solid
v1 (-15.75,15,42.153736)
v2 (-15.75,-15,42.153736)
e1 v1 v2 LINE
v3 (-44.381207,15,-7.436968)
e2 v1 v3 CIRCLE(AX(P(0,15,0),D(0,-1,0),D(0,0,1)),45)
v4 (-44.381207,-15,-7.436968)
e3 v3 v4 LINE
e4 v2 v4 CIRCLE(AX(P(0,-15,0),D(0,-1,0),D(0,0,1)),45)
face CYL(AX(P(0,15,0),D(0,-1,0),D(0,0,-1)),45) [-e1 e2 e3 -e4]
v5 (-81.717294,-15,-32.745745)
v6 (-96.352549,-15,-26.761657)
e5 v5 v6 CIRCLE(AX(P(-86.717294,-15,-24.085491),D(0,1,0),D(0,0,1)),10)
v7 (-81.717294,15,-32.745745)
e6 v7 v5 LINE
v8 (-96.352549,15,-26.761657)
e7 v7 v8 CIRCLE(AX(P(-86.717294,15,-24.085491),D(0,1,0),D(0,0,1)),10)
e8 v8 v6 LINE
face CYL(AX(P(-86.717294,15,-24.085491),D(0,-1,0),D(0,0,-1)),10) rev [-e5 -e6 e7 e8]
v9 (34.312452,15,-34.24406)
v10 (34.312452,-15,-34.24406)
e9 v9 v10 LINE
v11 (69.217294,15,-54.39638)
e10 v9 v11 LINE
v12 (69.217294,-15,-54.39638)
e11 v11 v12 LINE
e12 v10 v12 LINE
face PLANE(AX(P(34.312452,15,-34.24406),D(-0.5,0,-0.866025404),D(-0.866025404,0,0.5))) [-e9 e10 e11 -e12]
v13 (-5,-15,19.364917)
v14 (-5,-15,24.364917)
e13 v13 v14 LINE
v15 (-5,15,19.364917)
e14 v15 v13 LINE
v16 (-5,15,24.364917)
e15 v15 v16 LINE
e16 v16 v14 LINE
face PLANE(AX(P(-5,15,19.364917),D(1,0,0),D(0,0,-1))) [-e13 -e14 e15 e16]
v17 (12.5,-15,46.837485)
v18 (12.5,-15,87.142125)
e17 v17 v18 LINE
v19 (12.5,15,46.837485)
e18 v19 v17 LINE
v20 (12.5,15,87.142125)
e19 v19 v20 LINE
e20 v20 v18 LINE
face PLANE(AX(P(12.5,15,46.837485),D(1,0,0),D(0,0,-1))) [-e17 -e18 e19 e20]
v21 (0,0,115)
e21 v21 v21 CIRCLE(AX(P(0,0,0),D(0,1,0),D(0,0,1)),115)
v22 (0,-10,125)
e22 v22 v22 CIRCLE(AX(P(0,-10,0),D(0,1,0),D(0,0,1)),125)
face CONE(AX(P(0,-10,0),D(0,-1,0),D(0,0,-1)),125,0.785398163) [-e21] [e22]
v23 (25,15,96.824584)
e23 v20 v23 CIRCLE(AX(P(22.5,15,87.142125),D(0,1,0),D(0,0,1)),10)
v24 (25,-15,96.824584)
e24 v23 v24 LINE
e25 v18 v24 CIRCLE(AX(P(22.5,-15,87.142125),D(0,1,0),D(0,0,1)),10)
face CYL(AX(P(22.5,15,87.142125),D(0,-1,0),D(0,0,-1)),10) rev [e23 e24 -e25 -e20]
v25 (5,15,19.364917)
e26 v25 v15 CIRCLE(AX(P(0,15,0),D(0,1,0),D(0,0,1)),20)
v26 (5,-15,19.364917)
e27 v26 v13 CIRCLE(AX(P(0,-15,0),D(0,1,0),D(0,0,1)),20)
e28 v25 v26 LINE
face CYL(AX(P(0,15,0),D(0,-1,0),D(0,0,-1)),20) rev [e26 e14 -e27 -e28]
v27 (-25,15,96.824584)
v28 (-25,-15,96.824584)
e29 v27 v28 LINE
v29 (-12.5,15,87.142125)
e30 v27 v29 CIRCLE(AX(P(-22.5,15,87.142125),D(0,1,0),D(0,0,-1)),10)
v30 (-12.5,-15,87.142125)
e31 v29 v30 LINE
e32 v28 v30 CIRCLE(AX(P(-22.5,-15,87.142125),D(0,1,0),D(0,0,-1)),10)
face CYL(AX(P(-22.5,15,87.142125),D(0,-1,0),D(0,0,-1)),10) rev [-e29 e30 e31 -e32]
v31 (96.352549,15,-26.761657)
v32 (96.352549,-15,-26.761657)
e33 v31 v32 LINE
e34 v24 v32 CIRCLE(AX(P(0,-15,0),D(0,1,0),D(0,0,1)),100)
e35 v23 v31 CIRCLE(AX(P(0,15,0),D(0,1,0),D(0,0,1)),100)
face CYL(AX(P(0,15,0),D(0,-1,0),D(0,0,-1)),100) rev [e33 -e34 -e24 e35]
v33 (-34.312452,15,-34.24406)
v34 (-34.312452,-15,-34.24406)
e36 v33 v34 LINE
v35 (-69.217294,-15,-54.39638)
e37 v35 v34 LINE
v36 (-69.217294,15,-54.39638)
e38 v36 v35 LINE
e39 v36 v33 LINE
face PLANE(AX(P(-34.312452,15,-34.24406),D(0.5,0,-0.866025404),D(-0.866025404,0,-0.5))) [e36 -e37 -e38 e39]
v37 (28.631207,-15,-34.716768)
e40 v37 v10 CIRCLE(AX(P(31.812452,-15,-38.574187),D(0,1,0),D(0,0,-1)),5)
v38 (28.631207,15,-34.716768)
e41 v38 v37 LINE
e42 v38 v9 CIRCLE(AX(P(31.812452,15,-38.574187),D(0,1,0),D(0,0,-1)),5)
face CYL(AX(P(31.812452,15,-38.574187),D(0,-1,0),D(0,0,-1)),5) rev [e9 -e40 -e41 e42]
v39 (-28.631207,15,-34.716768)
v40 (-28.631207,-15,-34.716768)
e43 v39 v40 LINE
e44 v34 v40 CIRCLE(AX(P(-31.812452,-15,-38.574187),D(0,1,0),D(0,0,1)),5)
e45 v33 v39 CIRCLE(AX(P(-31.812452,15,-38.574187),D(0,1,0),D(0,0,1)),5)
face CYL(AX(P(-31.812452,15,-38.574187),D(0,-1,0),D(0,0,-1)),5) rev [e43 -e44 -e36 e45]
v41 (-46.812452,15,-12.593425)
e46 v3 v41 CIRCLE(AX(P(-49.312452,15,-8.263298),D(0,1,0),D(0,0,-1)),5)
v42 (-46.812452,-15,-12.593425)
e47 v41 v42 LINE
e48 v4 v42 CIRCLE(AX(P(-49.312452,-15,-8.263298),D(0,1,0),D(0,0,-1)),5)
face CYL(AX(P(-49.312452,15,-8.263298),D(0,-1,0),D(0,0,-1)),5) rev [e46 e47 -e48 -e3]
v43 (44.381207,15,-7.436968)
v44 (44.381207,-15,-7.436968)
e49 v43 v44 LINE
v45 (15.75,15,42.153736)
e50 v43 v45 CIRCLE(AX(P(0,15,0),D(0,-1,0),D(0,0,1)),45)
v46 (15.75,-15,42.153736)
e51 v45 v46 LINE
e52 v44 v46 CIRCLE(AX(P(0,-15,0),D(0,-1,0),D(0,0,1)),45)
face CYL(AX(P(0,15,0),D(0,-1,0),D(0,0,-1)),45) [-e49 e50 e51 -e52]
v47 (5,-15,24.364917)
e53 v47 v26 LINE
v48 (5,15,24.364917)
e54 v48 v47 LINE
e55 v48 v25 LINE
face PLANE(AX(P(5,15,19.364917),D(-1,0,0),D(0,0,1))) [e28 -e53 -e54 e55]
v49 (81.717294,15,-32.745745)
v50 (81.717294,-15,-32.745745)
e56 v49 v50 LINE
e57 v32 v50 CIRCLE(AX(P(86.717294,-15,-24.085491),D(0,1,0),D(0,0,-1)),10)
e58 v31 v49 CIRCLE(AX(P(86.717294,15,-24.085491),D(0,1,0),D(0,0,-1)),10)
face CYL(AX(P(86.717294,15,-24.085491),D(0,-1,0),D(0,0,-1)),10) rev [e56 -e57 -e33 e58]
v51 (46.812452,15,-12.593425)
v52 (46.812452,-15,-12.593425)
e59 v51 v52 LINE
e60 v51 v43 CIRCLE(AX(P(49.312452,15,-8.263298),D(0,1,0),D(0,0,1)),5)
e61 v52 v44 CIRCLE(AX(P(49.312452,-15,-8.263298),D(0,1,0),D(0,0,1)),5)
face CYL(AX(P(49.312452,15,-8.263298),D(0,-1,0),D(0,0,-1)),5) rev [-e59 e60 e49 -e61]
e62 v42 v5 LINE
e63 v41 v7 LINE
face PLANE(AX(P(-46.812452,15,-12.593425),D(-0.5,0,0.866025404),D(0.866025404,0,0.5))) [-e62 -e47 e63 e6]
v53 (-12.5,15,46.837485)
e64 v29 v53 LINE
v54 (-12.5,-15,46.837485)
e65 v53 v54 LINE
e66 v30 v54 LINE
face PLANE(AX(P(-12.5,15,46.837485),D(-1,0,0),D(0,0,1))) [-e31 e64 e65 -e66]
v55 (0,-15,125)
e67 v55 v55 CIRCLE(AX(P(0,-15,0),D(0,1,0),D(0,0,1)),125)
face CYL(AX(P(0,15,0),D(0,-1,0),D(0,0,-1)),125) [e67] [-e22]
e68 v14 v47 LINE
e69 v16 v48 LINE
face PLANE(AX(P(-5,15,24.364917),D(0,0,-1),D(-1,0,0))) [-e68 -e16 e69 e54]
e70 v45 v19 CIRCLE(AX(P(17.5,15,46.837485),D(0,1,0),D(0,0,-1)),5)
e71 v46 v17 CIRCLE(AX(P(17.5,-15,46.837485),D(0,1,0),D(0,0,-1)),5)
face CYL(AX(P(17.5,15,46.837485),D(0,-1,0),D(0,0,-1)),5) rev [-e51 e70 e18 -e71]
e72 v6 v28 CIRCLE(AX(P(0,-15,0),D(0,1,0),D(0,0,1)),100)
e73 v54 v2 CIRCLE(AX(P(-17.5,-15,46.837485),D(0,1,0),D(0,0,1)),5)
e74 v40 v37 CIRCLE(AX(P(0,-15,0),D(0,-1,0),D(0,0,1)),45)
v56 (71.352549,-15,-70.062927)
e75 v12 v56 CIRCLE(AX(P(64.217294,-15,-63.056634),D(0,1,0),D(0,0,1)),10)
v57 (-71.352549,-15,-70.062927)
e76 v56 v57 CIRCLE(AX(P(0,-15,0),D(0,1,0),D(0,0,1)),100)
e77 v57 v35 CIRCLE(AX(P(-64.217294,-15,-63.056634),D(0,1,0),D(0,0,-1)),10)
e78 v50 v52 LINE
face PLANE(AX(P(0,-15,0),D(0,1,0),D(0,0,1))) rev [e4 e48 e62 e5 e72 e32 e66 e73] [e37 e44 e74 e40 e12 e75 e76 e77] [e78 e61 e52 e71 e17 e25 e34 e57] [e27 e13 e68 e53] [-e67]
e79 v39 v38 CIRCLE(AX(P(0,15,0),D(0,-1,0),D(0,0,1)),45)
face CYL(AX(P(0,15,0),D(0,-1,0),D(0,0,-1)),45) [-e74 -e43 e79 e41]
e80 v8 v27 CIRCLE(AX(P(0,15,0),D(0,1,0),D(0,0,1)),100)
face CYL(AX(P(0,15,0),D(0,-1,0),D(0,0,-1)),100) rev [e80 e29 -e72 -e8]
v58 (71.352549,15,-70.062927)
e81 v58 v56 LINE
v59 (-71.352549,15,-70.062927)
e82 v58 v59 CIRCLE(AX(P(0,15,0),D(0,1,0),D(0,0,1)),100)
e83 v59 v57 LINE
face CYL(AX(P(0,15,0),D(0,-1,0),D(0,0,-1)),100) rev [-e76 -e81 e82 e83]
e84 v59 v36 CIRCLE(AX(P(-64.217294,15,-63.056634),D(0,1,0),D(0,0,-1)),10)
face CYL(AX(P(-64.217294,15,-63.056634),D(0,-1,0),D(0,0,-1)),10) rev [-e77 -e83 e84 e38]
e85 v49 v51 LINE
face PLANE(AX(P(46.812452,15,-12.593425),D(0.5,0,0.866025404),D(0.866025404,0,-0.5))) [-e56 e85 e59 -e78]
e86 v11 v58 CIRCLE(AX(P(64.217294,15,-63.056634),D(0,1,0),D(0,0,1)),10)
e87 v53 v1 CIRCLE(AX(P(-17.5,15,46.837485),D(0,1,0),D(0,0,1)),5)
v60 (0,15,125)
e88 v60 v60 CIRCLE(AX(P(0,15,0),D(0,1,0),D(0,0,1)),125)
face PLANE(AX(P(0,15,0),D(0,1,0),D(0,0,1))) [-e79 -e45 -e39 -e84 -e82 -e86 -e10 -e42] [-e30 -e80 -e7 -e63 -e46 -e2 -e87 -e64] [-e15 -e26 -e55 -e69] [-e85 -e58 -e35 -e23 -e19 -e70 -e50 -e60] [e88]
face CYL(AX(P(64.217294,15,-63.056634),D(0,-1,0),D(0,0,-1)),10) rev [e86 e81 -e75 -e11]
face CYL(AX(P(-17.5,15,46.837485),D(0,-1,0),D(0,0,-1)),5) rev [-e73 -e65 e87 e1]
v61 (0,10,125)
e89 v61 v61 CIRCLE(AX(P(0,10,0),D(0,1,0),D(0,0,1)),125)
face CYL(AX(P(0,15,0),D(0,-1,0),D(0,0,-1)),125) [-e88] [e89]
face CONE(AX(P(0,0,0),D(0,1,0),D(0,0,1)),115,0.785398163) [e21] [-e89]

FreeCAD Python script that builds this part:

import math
import FreeCAD as App
import Part
import Sketcher

V = App.Vector
Q = App.Units.Quantity

doc = App.newDocument("Part")
body = doc.addObject("PartDesign::Body", "Body")

sketch1 = body.newObject("Sketcher::SketchObject", "Sketch")
sketch1.AttachmentSupport = (doc.getObject("XZ_Plane"), [""])
sketch1.MapMode = "FlatFace"
sketch1.addGeometry([
    Part.Circle(V(0, 0, 0), V(0, 0, 1), 125),
    Part.ArcOfCircle(Part.Circle(V(-18, 47, 0), V(0, 0, 1), 5), math.radians(-70), math.radians(0)),
    Part.LineSegment(V(-12, 47, 0), V(-12, 87, 0)),
    Part.ArcOfCircle(Part.Circle(V(-22, 87, 0), V(0, 0, 1), 10), math.radians(0), math.radians(104)),
    Part.ArcOfCircle(Part.Circle(V(0, 0, 0), V(0, 0, 1), 100), math.radians(104), math.radians(196)),
    Part.ArcOfCircle(Part.Circle(V(-87, -24, 0), V(0, 0, 1), 10), math.radians(-164), math.radians(-60)),
    Part.LineSegment(V(-82, -33, 0), V(-47, -13, 0)),
    Part.ArcOfCircle(Part.Circle(V(-49, -8, 0), V(0, 0, 1), 5), math.radians(-60), math.radians(10)),
    Part.ArcOfCircle(Part.Circle(V(0, 0, 0), V(0, 0, 1), 45), math.radians(110), math.radians(190)),
    Part.LineSegment(V(69, -54, 0), V(34, -34, 0)),
    Part.ArcOfCircle(Part.Circle(V(32, -39, 0), V(0, 0, 1), 5), math.radians(60), math.radians(130)),
    Part.ArcOfCircle(Part.Circle(V(0, 0, 0), V(0, 0, 1), 45), math.radians(-130), math.radians(-50)),
    Part.ArcOfCircle(Part.Circle(V(-32, -39, 0), V(0, 0, 1), 5), math.radians(50), math.radians(120)),
    Part.LineSegment(V(-34, -34, 0), V(-69, -54, 0)),
    Part.ArcOfCircle(Part.Circle(V(-64, -63, 0), V(0, 0, 1), 10), math.radians(120), math.radians(224)),
    Part.ArcOfCircle(Part.Circle(V(0, 0, 0), V(0, 0, 1), 100), math.radians(-136), math.radians(-44)),
    Part.ArcOfCircle(Part.Circle(V(64, -63, 0), V(0, 0, 1), 10), math.radians(-44), math.radians(60)),
    Part.LineSegment(V(-5, 24, 0), V(-5, 19, 0)),
    Part.ArcOfCircle(Part.Circle(V(0, 0, 0), V(0, 0, 1), 20), math.radians(104), math.radians(436)),
    Part.LineSegment(V(5, 19, 0), V(5, 24, 0)),
    Part.LineSegment(V(5, 24, 0), V(-5, 24, 0)),
    Part.LineSegment(V(12, 87, 0), V(12, 47, 0)),
    Part.ArcOfCircle(Part.Circle(V(18, 47, 0), V(0, 0, 1), 5), math.radians(180), math.radians(250)),
    Part.ArcOfCircle(Part.Circle(V(0, 0, 0), V(0, 0, 1), 45), math.radians(-10), math.radians(70)),
    Part.ArcOfCircle(Part.Circle(V(49, -8, 0), V(0, 0, 1), 5), math.radians(170), math.radians(240)),
    Part.LineSegment(V(47, -13, 0), V(82, -33, 0)),
    Part.ArcOfCircle(Part.Circle(V(87, -24, 0), V(0, 0, 1), 10), math.radians(-120), math.radians(-16)),
    Part.ArcOfCircle(Part.Circle(V(0, 0, 0), V(0, 0, 1), 100), math.radians(-16), math.radians(76)),
    Part.ArcOfCircle(Part.Circle(V(22, 87, 0), V(0, 0, 1), 10), math.radians(76), math.radians(180)),
], False)
sketch1.addConstraint([
    Sketcher.Constraint("Tangent", 1, 2, 2, 1),
    Sketcher.Constraint("Tangent", 2, 2, 3, 1),
    Sketcher.Constraint("Tangent", 3, 2, 4, 1),
    Sketcher.Constraint("Tangent", 4, 2, 5, 1),
    Sketcher.Constraint("Tangent", 5, 2, 6, 1),
    Sketcher.Constraint("Tangent", 6, 2, 7, 1),
    Sketcher.Constraint("Tangent", 7, 2, 8, 2),
    Sketcher.Constraint("Tangent", 8, 1, 1, 1),
    Sketcher.Constraint("Tangent", 9, 2, 10, 1),
    Sketcher.Constraint("Tangent", 10, 2, 11, 2),
    Sketcher.Constraint("Tangent", 11, 1, 12, 1),
    Sketcher.Constraint("Tangent", 12, 2, 13, 1),
    Sketcher.Constraint("Tangent", 13, 2, 14, 1),
    Sketcher.Constraint("Tangent", 14, 2, 15, 1),
    Sketcher.Constraint("Tangent", 15, 2, 16, 1),
    Sketcher.Constraint("Tangent", 16, 2, 9, 1),
    Sketcher.Constraint("Coincident", 17, 2, 18, 1),
    Sketcher.Constraint("Coincident", 18, 2, 19, 1),
    Sketcher.Constraint("Coincident", 19, 2, 20, 1),
    Sketcher.Constraint("Coincident", 20, 2, 17, 1),
    Sketcher.Constraint("Tangent", 21, 2, 22, 1),
    Sketcher.Constraint("Tangent", 22, 2, 23, 2),
    Sketcher.Constraint("Tangent", 23, 1, 24, 1),
    Sketcher.Constraint("Tangent", 24, 2, 25, 1),
    Sketcher.Constraint("Tangent", 25, 2, 26, 1),
    Sketcher.Constraint("Tangent", 26, 2, 27, 1),
    Sketcher.Constraint("Tangent", 27, 2, 28, 1),
    Sketcher.Constraint("Tangent", 28, 2, 21, 1),
    Sketcher.Constraint("Vertical", 2),
    Sketcher.Constraint("Vertical", 17),
    Sketcher.Constraint("Vertical", 19),
    Sketcher.Constraint("Horizontal", 20),
    Sketcher.Constraint("Vertical", 21),
    Sketcher.Constraint("Coincident", 0, 3, -1, 1),
    Sketcher.Constraint("Coincident", 4, 3, -1, 1),
    Sketcher.Constraint("Coincident", 8, 3, -1, 1),
    Sketcher.Constraint("Coincident", 11, 3, -1, 1),
    Sketcher.Constraint("Coincident", 15, 3, -1, 1),
    Sketcher.Constraint("Coincident", 18, 3, -1, 1),
    Sketcher.Constraint("Coincident", 23, 3, -1, 1),
    Sketcher.Constraint("Coincident", 27, 3, -1, 1),
    Sketcher.Constraint("Equal", 3, 5),
    Sketcher.Constraint("Equal", 1, 7),
    Sketcher.Constraint("Equal", 7, 10),
    Sketcher.Constraint("Equal", 8, 11),
    Sketcher.Constraint("Equal", 10, 12),
    Sketcher.Constraint("Equal", 5, 14),
    Sketcher.Constraint("Equal", 4, 15),
    Sketcher.Constraint("Equal", 14, 16),
    Sketcher.Constraint("Equal", 12, 22),
    Sketcher.Constraint("Equal", 11, 23),
    Sketcher.Constraint("Equal", 22, 24),
    Sketcher.Constraint("Equal", 16, 26),
    Sketcher.Constraint("Equal", 15, 27),
    Sketcher.Constraint("Equal", 26, 28),
    Sketcher.Constraint("Symmetric", 9, 2, 12, 2, -2),
    Sketcher.Constraint("Symmetric", 6, 2, 24, 2, -2),
    Sketcher.Constraint("Parallel", 6, 13),
    Sketcher.Constraint("Horizontal", 1, 3, 22, 3),
    Sketcher.Constraint("Horizontal", 17, 2, 18, 2),
    Sketcher.Constraint("Equal", 6, 9),
    Sketcher.Constraint("Diameter", 0, Q("250 mm")),
    Sketcher.Constraint("Radius", 1, Q("5 mm")),
    Sketcher.Constraint("Radius", 3, Q("10 mm")),
    Sketcher.Constraint("Radius", 4, Q("100 mm")),
    Sketcher.Constraint("Radius", 8, Q("45 mm")),
    Sketcher.Constraint("Radius", 18, Q("20 mm")),
    Sketcher.Constraint("DistanceX", 20, 2, 20, 1, Q("10 mm")),
    Sketcher.Constraint("DistanceY", 17, 2, 17, 1, Q("5 mm")),
    Sketcher.Constraint("Angle", 6, Q("30 deg")),
    Sketcher.Constraint("DistanceX", 3, 2, -1, 1, Q("25 mm")),
    Sketcher.Constraint("DistanceX", 6, 2, 12, 3, Q("15 mm")),
])
pad1 = body.newObject("PartDesign::Pad", "Pad")
pad1.Profile = sketch1
pad1.Length = 30
pad1.Midplane = True

sketch2 = body.newObject("Sketcher::SketchObject", "Sketch001")
sketch2.AttachmentSupport = (doc.getObject("XY_Plane"), [""])
sketch2.MapMode = "FlatFace"
sketch2.addGeometry([
    Part.LineSegment(V(-125, 10, 0), V(-125, -10, 0)),
    Part.LineSegment(V(-125, -10, 0), V(-115, 0, 0)),
    Part.LineSegment(V(-115, 0, 0), V(-125, 10, 0)),
], False)
sketch2.addConstraint([
    Sketcher.Constraint("Coincident", 0, 2, 1, 1),
    Sketcher.Constraint("Coincident", 1, 2, 2, 1),
    Sketcher.Constraint("Coincident", 2, 2, 0, 1),
    Sketcher.Constraint("Vertical", 0),
    Sketcher.Constraint("PointOnObject", 1, 2, -1),
    Sketcher.Constraint("Perpendicular", 1, 2),
    Sketcher.Constraint("Equal", 1, 2),
    Sketcher.Constraint("DistanceY", 0, 2, 0, 1, Q("20 mm")),
    Sketcher.Constraint("DistanceX", 0, 2, -1, 1, Q("125 mm")),
])
groove = body.newObject("PartDesign::Groove", "Groove")
groove.Profile = sketch2
groove.ReferenceAxis = (sketch2, ["V_Axis"])
groove.Angle = 360

doc.recompute()
